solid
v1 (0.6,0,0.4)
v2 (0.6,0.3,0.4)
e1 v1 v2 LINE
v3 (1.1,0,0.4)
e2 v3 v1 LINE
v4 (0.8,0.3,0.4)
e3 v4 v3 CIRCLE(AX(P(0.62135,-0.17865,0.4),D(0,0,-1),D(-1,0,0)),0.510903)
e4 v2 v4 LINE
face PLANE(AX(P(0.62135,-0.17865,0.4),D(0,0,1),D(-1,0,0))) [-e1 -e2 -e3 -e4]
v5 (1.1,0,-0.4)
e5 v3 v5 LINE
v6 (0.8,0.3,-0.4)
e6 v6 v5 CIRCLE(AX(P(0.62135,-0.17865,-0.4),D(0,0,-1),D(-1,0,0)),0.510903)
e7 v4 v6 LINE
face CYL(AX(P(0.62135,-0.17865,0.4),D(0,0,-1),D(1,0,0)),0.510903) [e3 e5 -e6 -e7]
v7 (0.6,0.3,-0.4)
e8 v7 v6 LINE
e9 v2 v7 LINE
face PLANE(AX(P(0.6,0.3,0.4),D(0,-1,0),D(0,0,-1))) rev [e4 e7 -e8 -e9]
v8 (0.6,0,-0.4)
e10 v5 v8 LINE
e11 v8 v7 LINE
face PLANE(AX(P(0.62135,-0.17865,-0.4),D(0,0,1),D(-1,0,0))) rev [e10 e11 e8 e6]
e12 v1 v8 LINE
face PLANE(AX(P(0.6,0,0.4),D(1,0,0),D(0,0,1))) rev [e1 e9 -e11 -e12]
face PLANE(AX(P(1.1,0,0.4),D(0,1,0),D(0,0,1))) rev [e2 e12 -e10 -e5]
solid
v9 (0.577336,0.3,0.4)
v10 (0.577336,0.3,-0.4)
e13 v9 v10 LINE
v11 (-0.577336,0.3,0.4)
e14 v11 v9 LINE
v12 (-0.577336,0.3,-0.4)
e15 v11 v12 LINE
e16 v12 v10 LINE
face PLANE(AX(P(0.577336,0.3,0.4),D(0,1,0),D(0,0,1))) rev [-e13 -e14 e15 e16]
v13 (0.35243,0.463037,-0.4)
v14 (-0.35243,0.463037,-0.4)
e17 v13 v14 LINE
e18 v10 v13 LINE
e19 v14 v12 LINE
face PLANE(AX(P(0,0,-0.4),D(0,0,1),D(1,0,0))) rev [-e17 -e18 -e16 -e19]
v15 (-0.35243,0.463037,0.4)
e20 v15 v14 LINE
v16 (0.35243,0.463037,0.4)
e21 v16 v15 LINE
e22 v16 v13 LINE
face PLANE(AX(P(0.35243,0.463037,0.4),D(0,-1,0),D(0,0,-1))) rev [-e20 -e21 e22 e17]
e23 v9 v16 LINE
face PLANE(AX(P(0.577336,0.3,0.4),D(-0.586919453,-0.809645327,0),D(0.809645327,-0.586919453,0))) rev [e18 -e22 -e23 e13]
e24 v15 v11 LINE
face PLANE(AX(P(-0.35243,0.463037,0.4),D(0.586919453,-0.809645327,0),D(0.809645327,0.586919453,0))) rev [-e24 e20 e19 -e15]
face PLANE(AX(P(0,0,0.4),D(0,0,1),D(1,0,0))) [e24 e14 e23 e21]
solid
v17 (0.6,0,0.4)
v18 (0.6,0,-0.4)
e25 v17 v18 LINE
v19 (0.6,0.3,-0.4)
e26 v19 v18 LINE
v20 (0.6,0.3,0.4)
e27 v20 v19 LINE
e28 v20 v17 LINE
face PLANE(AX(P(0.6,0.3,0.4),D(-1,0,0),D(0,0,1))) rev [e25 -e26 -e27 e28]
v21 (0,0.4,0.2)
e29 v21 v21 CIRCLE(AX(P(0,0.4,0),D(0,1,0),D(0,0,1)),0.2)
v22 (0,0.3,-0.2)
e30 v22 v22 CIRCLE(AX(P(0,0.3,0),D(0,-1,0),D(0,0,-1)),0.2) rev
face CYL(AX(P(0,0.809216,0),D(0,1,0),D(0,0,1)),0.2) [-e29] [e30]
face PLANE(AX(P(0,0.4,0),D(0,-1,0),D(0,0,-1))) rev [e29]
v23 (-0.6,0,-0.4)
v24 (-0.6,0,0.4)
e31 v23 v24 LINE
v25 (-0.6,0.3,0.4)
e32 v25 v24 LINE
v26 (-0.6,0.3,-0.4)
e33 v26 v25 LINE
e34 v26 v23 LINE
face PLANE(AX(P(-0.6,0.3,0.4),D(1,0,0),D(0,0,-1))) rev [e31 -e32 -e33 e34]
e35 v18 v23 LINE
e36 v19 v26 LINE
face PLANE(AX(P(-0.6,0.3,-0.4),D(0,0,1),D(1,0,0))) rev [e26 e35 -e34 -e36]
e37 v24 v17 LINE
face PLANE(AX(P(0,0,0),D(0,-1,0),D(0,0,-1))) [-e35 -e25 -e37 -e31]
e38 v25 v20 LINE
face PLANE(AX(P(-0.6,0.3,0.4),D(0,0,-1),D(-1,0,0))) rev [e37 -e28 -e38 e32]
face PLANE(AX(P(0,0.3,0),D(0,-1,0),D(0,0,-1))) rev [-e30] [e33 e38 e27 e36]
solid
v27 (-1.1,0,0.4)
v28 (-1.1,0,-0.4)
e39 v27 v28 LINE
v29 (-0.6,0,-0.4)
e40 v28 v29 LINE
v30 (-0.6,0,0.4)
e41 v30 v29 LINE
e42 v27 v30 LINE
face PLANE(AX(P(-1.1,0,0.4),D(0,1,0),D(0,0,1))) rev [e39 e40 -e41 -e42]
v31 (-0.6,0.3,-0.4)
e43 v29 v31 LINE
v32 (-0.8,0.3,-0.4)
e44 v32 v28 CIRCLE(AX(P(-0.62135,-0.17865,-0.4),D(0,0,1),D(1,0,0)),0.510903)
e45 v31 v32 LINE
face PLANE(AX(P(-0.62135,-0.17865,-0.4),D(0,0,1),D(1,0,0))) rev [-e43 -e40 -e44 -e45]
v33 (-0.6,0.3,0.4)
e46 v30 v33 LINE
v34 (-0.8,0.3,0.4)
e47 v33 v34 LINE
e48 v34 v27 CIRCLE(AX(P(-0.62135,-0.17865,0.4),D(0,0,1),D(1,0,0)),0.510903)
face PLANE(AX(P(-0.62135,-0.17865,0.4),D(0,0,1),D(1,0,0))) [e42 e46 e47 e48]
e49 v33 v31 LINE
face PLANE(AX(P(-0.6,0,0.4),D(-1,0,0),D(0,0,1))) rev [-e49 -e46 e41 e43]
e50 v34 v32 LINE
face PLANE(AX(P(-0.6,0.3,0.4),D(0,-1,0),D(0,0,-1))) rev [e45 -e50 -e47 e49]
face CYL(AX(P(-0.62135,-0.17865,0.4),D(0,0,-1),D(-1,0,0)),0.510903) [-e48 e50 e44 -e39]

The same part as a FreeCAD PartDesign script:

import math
import FreeCAD as App
import Part
import Sketcher

V = App.Vector
Q = App.Units.Quantity

doc = App.newDocument("Part")
body = doc.addObject("PartDesign::Body", "Body")

# Sketch on XZ plane
sketch1 = doc.addObject("Sketcher::SketchObject", "Sketch")
body.addObject(sketch1)
sketch1.AttachmentSupport = (doc.XZ_Plane, [""])
sketch1.MapMode = "FlatFace"
sketch1.addGeometry(Part.LineSegment(V(-0.6, -0.4, 0), V(-0.6, 0.4, 0)), False)
sketch1.addGeometry(Part.LineSegment(V(-0.6, 0.4, 0), V(0.6, 0.4, 0)), False)
sketch1.addGeometry(Part.LineSegment(V(0.6, 0.4, 0), V(0.6, -0.4, 0)), False)
sketch1.addGeometry(Part.LineSegment(V(0.6, -0.4, 0), V(-0.6, -0.4, 0)), False)
sketch1.addConstraint(Sketcher.Constraint("Coincident", 0, 2, 1, 1))
sketch1.addConstraint(Sketcher.Constraint("Coincident", 1, 2, 2, 1))
sketch1.addConstraint(Sketcher.Constraint("Coincident", 2, 2, 3, 1))
sketch1.addConstraint(Sketcher.Constraint("Coincident", 3, 2, 0, 1))
sketch1.addConstraint(Sketcher.Constraint("Vertical", 0))
sketch1.addConstraint(Sketcher.Constraint("Horizontal", 1))
sketch1.addConstraint(Sketcher.Constraint("Vertical", 2))
sketch1.addConstraint(Sketcher.Constraint("Horizontal", 3))
sketch1.addConstraint(Sketcher.Constraint("Symmetric", 0, 2, 2, 2, -1, 1))
sketch1.addConstraint(Sketcher.Constraint("DistanceX", 1, 1, 1, 2, Q("1.2 mm")))
sketch1.addConstraint(Sketcher.Constraint("DistanceY", 0, 1, 0, 2, Q("0.8 mm")))
pad1 = doc.addObject("PartDesign::Pad", "Pad")
body.addObject(pad1)
pad1.Profile = sketch1
pad1.Length = 0.3
pad1.Reversed = True

# Sketch on XY plane
sketch2 = doc.addObject("Sketcher::SketchObject", "Sketch001")
body.addObject(sketch2)
sketch2.AttachmentSupport = (doc.XY_Plane, [""])
sketch2.MapMode = "FlatFace"
sketch2.addGeometry(Part.LineSegment(V(0, 0.4, 0), V(0, 0.3, 0)), False)
sketch2.addGeometry(Part.LineSegment(V(0, 0.3, 0), V(0.2, 0.3, 0)), False)
sketch2.addGeometry(Part.LineSegment(V(0.2, 0.3, 0), V(0.2, 0.4, 0)), False)
sketch2.addGeometry(Part.LineSegment(V(0.2, 0.4, 0), V(0, 0.4, 0)), False)
sketch2.addConstraint(Sketcher.Constraint("Coincident", 0, 2, 1, 1))
sketch2.addConstraint(Sketcher.Constraint("Coincident", 1, 2, 2, 1))
sketch2.addConstraint(Sketcher.Constraint("Coincident", 2, 2, 3, 1))
sketch2.addConstraint(Sketcher.Constraint("Coincident", 3, 2, 0, 1))
sketch2.addConstraint(Sketcher.Constraint("Vertical", 0))
sketch2.addConstraint(Sketcher.Constraint("Horizontal", 1))
sketch2.addConstraint(Sketcher.Constraint("Vertical", 2))
sketch2.addConstraint(Sketcher.Constraint("Horizontal", 3))
sketch2.addConstraint(Sketcher.Constraint("PointOnObject", 0, 2, -2))
sketch2.addConstraint(Sketcher.Constraint("DistanceX", 1, 1, 1, 2, Q("0.2 mm")))
sketch2.addConstraint(Sketcher.Constraint("DistanceY", 0, 2, 0, 1, Q("0.1 mm")))
sketch2.addConstraint(Sketcher.Constraint("DistanceY", -1, 1, 0, 2, Q("0.3 mm")))
revolution = doc.addObject("PartDesign::Revolution", "Revolution")
body.addObject(revolution)
revolution.Profile = sketch2
revolution.ReferenceAxis = (sketch2, ["V_Axis"])
revolution.Angle = 360
body2 = doc.addObject("PartDesign::Body", "Body001")

# Sketch on XY plane
sketch3 = doc.addObject("Sketcher::SketchObject", "Sketch002")
body2.addObject(sketch3)
sketch3.AttachmentSupport = (doc.getObject("XY_Plane001"), [""])
sketch3.MapMode = "FlatFace"
sketch3.addGeometry(Part.LineSegment(V(-0.6, 0.3, 0), V(-0.8, 0.3, 0)), False)
sketch3.addGeometry(Part.ArcOfCircle(Part.Circle(V(-0.62135, -0.17865, 0), V(0, 0, 1), 0.510903), math.radians(110.467457), math.radians(159.532543)), False)
sketch3.addGeometry(Part.LineSegment(V(-1.1, 0, 0), V(-0.6, 0, 0)), False)
sketch3.addGeometry(Part.LineSegment(V(-0.6, 0, 0), V(-0.6, 0.3, 0)), False)
sketch3.addConstraint(Sketcher.Constraint("Coincident", 0, 2, 1, 1))
sketch3.addConstraint(Sketcher.Constraint("Coincident", 1, 2, 2, 1))
sketch3.addConstraint(Sketcher.Constraint("Coincident", 2, 2, 3, 1))
sketch3.addConstraint(Sketcher.Constraint("Coincident", 3, 2, 0, 1))
sketch3.addConstraint(Sketcher.Constraint("Horizontal", 0))
sketch3.addConstraint(Sketcher.Constraint("Horizontal", 2))
sketch3.addConstraint(Sketcher.Constraint("Vertical", 3))
sketch3.addConstraint(Sketcher.Constraint("PointOnObject", 1, 2, -1))
sketch3.addConstraint(Sketcher.Constraint("DistanceX", 0, 2, 0, 1, Q("0.2 mm")))
sketch3.addConstraint(Sketcher.Constraint("DistanceX", 2, 1, 2, 2, Q("0.5 mm")))
sketch3.addConstraint(Sketcher.Constraint("DistanceY", 3, 1, 3, 2, Q("0.3 mm")))
sketch3.addConstraint(Sketcher.Constraint("DistanceX", 0, 2, -1, 1, Q("0.8 mm")))
sketch3.addConstraint(Sketcher.Constraint("Radius", 1, Q("0.510903 mm")))
pad2 = doc.addObject("PartDesign::Pad", "Pad001")
body2.addObject(pad2)
pad2.Profile = sketch3
pad2.Length = 0.8
pad2.Midplane = True
body3 = doc.addObject("PartDesign::Body", "Body002")
doc.recompute()

mirroring = doc.addObject("Part::Mirroring", "Mirroring")
mirroring.Source = body2
mirroring.Base = V(0, 0, 0)
mirroring.Normal = V(1, 0, 0)
body3.BaseFeature = mirroring
doc.recompute()
body4 = doc.addObject("PartDesign::Body", "Body003")

# Sketch on XY plane
sketch4 = doc.addObject("Sketcher::SketchObject", "Sketch003")
body4.addObject(sketch4)
sketch4.AttachmentSupport = (doc.getObject("XY_Plane003"), [""])
sketch4.MapMode = "FlatFace"
sketch4.addGeometry(Part.LineSegment(V(-0.577336, 0.3, 0), V(0.577336, 0.3, 0)), False)
sketch4.addGeometry(Part.LineSegment(V(0.577336, 0.3, 0), V(0.35243, 0.463037, 0)), False)
sketch4.addGeometry(Part.LineSegment(V(0.35243, 0.463037, 0), V(-0.35243, 0.463037, 0)), False)
sketch4.addGeometry(Part.LineSegment(V(-0.35243, 0.463037, 0), V(-0.577336, 0.3, 0)), False)
sketch4.addConstraint(Sketcher.Constraint("Coincident", 0, 2, 1, 1))
sketch4.addConstraint(Sketcher.Constraint("Coincident", 1, 2, 2, 1))
sketch4.addConstraint(Sketcher.Constraint("Coincident", 2, 2, 3, 1))
sketch4.addConstraint(Sketcher.Constraint("Coincident", 3, 2, 0, 1))
sketch4.addConstraint(Sketcher.Constraint("Horizontal", 0))
sketch4.addConstraint(Sketcher.Constraint("Horizontal", 2))
sketch4.addConstraint(Sketcher.Constraint("Equal", 1, 3))
sketch4.addConstraint(Sketcher.Constraint("DistanceY", -1, 1, 0, 2, Q("0.3 mm")))
sketch4.addConstraint(Sketcher.Constraint("DistanceX", 2, 2, 2, 1, Q("0.70486 mm")))
sketch4.addConstraint(Sketcher.Constraint("DistanceX", 0, 1, 0, 2, Q("1.154672 mm")))
sketch4.addConstraint(Sketcher.Constraint("DistanceX", -1, 1, 1, 2, Q("0.35243 mm")))
sketch4.addConstraint(Sketcher.Constraint("Distance", 1, Q("0.277783 mm")))
pad3 = doc.addObject("PartDesign::Pad", "Pad002")
body4.addObject(pad3)
pad3.Profile = sketch4
pad3.Length = 0.8
pad3.Midplane = True
mirroring.Visibility = False

doc.recompute()
